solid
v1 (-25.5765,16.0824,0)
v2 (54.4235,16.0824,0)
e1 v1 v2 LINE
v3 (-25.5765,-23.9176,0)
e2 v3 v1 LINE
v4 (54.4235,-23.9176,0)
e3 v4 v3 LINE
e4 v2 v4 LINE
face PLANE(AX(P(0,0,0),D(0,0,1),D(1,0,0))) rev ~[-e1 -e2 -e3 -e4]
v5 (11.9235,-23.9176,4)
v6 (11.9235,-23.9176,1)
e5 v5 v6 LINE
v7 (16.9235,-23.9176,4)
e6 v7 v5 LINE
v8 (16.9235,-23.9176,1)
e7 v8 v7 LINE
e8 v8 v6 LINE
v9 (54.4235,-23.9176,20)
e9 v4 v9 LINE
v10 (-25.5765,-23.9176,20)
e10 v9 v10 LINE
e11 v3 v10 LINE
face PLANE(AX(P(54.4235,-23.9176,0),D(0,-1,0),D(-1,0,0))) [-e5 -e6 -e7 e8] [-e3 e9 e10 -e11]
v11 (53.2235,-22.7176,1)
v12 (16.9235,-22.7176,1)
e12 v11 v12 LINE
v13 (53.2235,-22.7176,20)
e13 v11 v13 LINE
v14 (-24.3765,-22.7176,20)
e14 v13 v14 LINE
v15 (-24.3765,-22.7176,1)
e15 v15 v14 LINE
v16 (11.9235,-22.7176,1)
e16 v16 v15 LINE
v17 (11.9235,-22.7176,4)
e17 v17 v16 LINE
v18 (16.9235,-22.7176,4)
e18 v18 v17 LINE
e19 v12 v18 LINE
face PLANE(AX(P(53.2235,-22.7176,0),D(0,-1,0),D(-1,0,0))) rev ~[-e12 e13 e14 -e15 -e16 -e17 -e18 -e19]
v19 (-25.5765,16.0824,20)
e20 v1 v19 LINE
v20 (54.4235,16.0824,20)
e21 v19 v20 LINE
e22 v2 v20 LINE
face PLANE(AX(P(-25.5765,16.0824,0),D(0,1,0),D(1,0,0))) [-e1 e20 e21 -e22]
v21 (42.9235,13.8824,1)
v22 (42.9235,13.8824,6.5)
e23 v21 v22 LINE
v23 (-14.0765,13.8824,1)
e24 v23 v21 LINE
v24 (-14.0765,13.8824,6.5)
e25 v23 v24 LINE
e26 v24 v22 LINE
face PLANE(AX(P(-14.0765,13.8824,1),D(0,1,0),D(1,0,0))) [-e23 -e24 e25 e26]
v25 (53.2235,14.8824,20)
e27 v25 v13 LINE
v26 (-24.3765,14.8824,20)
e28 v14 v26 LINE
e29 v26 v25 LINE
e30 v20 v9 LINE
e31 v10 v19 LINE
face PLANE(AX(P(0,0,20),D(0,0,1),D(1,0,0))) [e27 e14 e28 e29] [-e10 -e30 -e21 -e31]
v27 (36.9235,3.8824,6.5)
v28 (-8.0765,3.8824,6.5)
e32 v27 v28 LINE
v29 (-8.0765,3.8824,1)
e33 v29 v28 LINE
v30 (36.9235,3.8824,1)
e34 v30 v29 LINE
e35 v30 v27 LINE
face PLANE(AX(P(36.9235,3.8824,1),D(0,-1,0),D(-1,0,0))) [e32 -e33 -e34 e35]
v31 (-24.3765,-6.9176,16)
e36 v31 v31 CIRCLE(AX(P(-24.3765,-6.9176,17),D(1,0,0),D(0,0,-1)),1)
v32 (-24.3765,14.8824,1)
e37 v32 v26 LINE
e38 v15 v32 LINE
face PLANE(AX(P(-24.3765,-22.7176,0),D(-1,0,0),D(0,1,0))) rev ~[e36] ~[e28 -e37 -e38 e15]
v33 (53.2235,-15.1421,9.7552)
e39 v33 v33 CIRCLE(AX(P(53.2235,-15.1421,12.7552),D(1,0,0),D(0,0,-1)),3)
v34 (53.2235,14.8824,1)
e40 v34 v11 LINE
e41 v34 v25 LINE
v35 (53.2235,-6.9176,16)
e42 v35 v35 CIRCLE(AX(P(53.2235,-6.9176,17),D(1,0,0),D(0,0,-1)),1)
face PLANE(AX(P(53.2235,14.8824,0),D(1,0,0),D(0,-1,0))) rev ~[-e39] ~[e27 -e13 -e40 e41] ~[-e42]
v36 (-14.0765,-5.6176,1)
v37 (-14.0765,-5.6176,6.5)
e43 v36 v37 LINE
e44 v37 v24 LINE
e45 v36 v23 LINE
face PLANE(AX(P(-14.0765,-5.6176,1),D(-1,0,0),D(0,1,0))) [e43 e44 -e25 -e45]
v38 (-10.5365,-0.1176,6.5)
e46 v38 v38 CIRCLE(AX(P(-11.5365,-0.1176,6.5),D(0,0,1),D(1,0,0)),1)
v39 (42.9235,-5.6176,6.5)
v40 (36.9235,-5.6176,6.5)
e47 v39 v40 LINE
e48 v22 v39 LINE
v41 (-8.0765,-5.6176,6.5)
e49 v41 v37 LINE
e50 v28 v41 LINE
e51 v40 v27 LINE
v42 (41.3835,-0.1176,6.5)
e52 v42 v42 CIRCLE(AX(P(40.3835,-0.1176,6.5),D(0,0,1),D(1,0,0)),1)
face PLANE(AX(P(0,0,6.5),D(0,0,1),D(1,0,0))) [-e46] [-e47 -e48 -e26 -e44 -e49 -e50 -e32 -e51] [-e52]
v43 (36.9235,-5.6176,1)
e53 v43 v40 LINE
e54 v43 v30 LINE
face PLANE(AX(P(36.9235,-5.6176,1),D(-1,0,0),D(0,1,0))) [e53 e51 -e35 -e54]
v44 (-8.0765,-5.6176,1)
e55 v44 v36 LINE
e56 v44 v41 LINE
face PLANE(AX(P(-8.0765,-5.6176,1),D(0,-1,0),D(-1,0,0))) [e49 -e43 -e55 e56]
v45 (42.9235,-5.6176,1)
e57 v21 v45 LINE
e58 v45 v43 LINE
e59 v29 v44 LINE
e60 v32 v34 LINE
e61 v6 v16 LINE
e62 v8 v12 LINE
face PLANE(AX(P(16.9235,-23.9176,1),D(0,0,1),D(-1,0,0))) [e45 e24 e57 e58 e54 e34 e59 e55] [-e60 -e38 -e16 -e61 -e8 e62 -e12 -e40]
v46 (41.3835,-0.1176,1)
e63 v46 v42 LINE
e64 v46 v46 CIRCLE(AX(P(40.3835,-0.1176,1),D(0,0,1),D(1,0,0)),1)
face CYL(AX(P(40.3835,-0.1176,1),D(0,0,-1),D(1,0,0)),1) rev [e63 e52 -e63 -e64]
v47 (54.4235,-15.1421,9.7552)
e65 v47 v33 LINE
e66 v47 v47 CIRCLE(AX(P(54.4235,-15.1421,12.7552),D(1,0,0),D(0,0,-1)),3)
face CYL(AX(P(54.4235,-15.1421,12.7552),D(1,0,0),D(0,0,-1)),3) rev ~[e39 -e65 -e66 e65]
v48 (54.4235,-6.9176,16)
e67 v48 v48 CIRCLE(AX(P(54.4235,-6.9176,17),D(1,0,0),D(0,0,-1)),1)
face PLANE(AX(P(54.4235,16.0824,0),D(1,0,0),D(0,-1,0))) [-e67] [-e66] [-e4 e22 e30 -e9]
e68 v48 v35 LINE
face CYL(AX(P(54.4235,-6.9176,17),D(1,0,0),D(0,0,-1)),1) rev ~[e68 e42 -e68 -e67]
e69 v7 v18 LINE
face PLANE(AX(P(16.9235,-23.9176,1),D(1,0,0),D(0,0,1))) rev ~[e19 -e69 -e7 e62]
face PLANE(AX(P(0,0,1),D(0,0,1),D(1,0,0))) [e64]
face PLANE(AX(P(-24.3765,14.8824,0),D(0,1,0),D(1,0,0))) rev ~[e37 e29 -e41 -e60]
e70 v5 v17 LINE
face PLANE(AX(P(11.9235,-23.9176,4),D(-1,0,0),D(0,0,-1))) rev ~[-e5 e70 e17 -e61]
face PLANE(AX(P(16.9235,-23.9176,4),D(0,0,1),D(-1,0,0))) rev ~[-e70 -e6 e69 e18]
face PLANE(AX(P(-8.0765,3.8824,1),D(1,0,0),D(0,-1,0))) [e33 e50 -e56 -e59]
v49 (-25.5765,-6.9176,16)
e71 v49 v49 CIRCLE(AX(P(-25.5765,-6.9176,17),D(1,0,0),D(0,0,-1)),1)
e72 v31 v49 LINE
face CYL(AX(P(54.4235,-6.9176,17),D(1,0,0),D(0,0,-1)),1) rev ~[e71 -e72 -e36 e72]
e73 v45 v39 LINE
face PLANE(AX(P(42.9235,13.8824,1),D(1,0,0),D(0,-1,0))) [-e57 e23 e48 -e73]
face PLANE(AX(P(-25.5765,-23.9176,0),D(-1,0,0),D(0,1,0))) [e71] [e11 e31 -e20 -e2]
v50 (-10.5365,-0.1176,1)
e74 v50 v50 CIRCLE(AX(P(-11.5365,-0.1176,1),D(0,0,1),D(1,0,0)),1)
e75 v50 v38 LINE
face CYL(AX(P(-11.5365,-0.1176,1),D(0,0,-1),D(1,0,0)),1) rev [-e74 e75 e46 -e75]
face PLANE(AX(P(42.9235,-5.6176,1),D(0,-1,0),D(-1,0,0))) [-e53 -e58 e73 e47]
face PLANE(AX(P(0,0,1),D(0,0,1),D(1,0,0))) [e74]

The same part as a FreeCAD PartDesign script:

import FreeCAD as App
import Part
import Sketcher

V = App.Vector

doc = App.newDocument("Part")
params = doc.addObject("Spreadsheet::Sheet", "Params")
for row, (alias, value) in enumerate([
    ("sketch1_width", "77.6 mm"),
    ("sketch1_height", "37.6 mm"),
    ("pad1_length", "1 mm"),
    ("sketch2_width", "80 mm"),
    ("sketch2_height", "40 mm"),
    ("pad2_length", "20 mm"),
    ("sketch3_diameter", "2 mm"),
    ("sketch3_width", "6 mm"),
    ("sketch3_width2", "57 mm"),
    ("sketch3_height", "19.5 mm"),
    ("pad3_length", "5.5 mm"),
    ("sketch4_diameter", "2 mm"),
    ("sketch5_diameter", "6 mm"),
    ("pocket2_length", "1.2 mm"),
    ("sketch6_width", "5 mm"),
    ("sketch6_height", "3 mm"),
    ("pocket3_length", "1.2 mm"),
], start=1):
    params.set(f"A{row}", alias)
    params.set(f"B{row}", "=" + value)
    params.setAlias(f"B{row}", alias)

body = doc.addObject("PartDesign::Body", "Body")

# Sketch on XY plane
sketch1 = body.newObject("Sketcher::SketchObject", "Sketch")
sketch1.AttachmentSupport = (doc.getObject("XY_Plane"), [""])
sketch1.MapMode = "FlatFace"
sketch1.addGeometry(Part.LineSegment(V(53, 15, 0), V(-24, 15, 0)), False)
sketch1.addGeometry(Part.LineSegment(V(-24, 15, 0), V(-24, -23, 0)), False)
sketch1.addGeometry(Part.LineSegment(V(-24, -23, 0), V(53, -23, 0)), False)
sketch1.addGeometry(Part.LineSegment(V(53, -23, 0), V(53, 15, 0)), False)
sketch1.addConstraint(Sketcher.Constraint("Coincident", 0, 2, 1, 1))
sketch1.addConstraint(Sketcher.Constraint("Coincident", 1, 2, 2, 1))
sketch1.addConstraint(Sketcher.Constraint("Coincident", 2, 2, 3, 1))
sketch1.addConstraint(Sketcher.Constraint("Coincident", 3, 2, 0, 1))
sketch1.addConstraint(Sketcher.Constraint("Horizontal", 0))
sketch1.addConstraint(Sketcher.Constraint("Vertical", 1))
sketch1.addConstraint(Sketcher.Constraint("Horizontal", 2))
sketch1.addConstraint(Sketcher.Constraint("Vertical", 3))
sketch1.addConstraint(Sketcher.Constraint("DistanceX", 0, 2, 0, 1, 77.6))
sketch1.addConstraint(Sketcher.Constraint("DistanceY", 1, 2, 1, 1, 37.6))
sketch1.addConstraint(Sketcher.Constraint("DistanceX", 0, 2, -1, 1, 24.3765))
sketch1.addConstraint(Sketcher.Constraint("DistanceY", -1, 1, 0, 2, 14.8824))
sketch1.setExpression("Constraints[8]", "Params.sketch1_width")
sketch1.setExpression("Constraints[9]", "Params.sketch1_height")
pad1 = body.newObject("PartDesign::Pad", "Pad")
pad1.Profile = sketch1
pad1.setExpression("Length", "Params.pad1_length")

# Sketch on XY plane
sketch2 = body.newObject("Sketcher::SketchObject", "Sketch001")
sketch2.AttachmentSupport = (doc.getObject("XY_Plane"), [""])
sketch2.MapMode = "FlatFace"
sketch2.addGeometry(Part.LineSegment(V(54, 16, 0), V(-26, 16, 0)), False)
sketch2.addGeometry(Part.LineSegment(V(-26, 16, 0), V(-26, -24, 0)), False)
sketch2.addGeometry(Part.LineSegment(V(-26, -24, 0), V(54, -24, 0)), False)
sketch2.addGeometry(Part.LineSegment(V(54, -24, 0), V(54, 16, 0)), False)
sketch2.addGeometry(Part.LineSegment(V(-24, -23, 0), V(-24, 15, 0)), False)
sketch2.addGeometry(Part.LineSegment(V(-24, 15, 0), V(53, 15, 0)), False)
sketch2.addGeometry(Part.LineSegment(V(53, 15, 0), V(53, -23, 0)), False)
sketch2.addGeometry(Part.LineSegment(V(53, -23, 0), V(-24, -23, 0)), False)
sketch2.addConstraint(Sketcher.Constraint("Coincident", 0, 2, 1, 1))
sketch2.addConstraint(Sketcher.Constraint("Coincident", 1, 2, 2, 1))
sketch2.addConstraint(Sketcher.Constraint("Coincident", 2, 2, 3, 1))
sketch2.addConstraint(Sketcher.Constraint("Coincident", 3, 2, 0, 1))
sketch2.addConstraint(Sketcher.Constraint("Coincident", 4, 2, 5, 1))
sketch2.addConstraint(Sketcher.Constraint("Coincident", 5, 2, 6, 1))
sketch2.addConstraint(Sketcher.Constraint("Coincident", 6, 2, 7, 1))
sketch2.addConstraint(Sketcher.Constraint("Coincident", 7, 2, 4, 1))
sketch2.addConstraint(Sketcher.Constraint("Horizontal", 0))
sketch2.addConstraint(Sketcher.Constraint("Vertical", 1))
sketch2.addConstraint(Sketcher.Constraint("Horizontal", 2))
sketch2.addConstraint(Sketcher.Constraint("Vertical", 3))
sketch2.addConstraint(Sketcher.Constraint("Vertical", 4))
sketch2.addConstraint(Sketcher.Constraint("Horizontal", 5))
sketch2.addConstraint(Sketcher.Constraint("Vertical", 6))
sketch2.addConstraint(Sketcher.Constraint("Horizontal", 7))
sketch2.addConstraint(Sketcher.Constraint("DistanceX", 0, 2, 0, 1, 80.0))
sketch2.addConstraint(Sketcher.Constraint("DistanceY", 1, 2, 1, 1, 40.0))
sketch2.addConstraint(Sketcher.Constraint("DistanceX", 0, 2, 4, 2, 1.2))
sketch2.addConstraint(Sketcher.Constraint("DistanceY", 4, 2, 0, 2, 1.2))
sketch2.addConstraint(Sketcher.Constraint("DistanceX", 5, 2, 3, 2, 1.2))
sketch2.addConstraint(Sketcher.Constraint("DistanceY", 2, 2, 6, 2, 1.2))
sketch2.addConstraint(Sketcher.Constraint("DistanceX", 0, 2, -1, 1, 25.5765))
sketch2.addConstraint(Sketcher.Constraint("DistanceY", -1, 1, 0, 2, 16.0824))
sketch2.setExpression("Constraints[16]", "Params.sketch2_width")
sketch2.setExpression("Constraints[17]", "Params.sketch2_height")
pad2 = body.newObject("PartDesign::Pad", "Pad001")
pad2.Profile = sketch2
pad2.setExpression("Length", "Params.pad2_length")

# Sketch on XY plane
sketch3 = body.newObject("Sketcher::SketchObject", "Sketch002")
sketch3.AttachmentSupport = (doc.getObject("XY_Plane"), [""])
sketch3.MapMode = "FlatFace"
sketch3.AttachmentOffset = App.Placement(V(0, 0, 1), App.Rotation())
sketch3.addGeometry(Part.LineSegment(V(-14.1, 13.9, 0), V(-14.1, -5.6, 0)), False)
sketch3.addGeometry(Part.LineSegment(V(-14.1, -5.6, 0), V(-8.1, -5.6, 0)), False)
sketch3.addGeometry(Part.LineSegment(V(-8.1, -5.6, 0), V(-8.1, 3.9, 0)), False)
sketch3.addGeometry(Part.LineSegment(V(-8.1, 3.9, 0), V(36.9, 3.9, 0)), False)
sketch3.addGeometry(Part.LineSegment(V(36.9, 3.9, 0), V(36.9, -5.6, 0)), False)
sketch3.addGeometry(Part.LineSegment(V(36.9, -5.6, 0), V(42.9, -5.6, 0)), False)
sketch3.addGeometry(Part.LineSegment(V(42.9, -5.6, 0), V(42.9, 13.9, 0)), False)
sketch3.addGeometry(Part.LineSegment(V(42.9, 13.9, 0), V(-14.1, 13.9, 0)), False)
sketch3.addGeometry(Part.Circle(V(-11.5, -0.1, 0), V(0, 0, 1), 1), False)
sketch3.addGeometry(Part.Circle(V(40.4, -0.1, 0), V(0, 0, 1), 1), False)
sketch3.addConstraint(Sketcher.Constraint("Coincident", 0, 2, 1, 1))
sketch3.addConstraint(Sketcher.Constraint("Coincident", 1, 2, 2, 1))
sketch3.addConstraint(Sketcher.Constraint("Coincident", 2, 2, 3, 1))
sketch3.addConstraint(Sketcher.Constraint("Coincident", 3, 2, 4, 1))
sketch3.addConstraint(Sketcher.Constraint("Coincident", 4, 2, 5, 1))
sketch3.addConstraint(Sketcher.Constraint("Coincident", 5, 2, 6, 1))
sketch3.addConstraint(Sketcher.Constraint("Coincident", 6, 2, 7, 1))
sketch3.addConstraint(Sketcher.Constraint("Coincident", 7, 2, 0, 1))
sketch3.addConstraint(Sketcher.Constraint("Vertical", 0))
sketch3.addConstraint(Sketcher.Constraint("Horizontal", 1))
sketch3.addConstraint(Sketcher.Constraint("Vertical", 2))
sketch3.addConstraint(Sketcher.Constraint("Horizontal", 3))
sketch3.addConstraint(Sketcher.Constraint("Vertical", 4))
sketch3.addConstraint(Sketcher.Constraint("Horizontal", 5))
sketch3.addConstraint(Sketcher.Constraint("Vertical", 6))
sketch3.addConstraint(Sketcher.Constraint("Horizontal", 7))
sketch3.addConstraint(Sketcher.Constraint("Equal", 8, 9))
sketch3.addConstraint(Sketcher.Constraint("Horizontal", 8, 3, 9, 3))
sketch3.addConstraint(Sketcher.Constraint("Horizontal", 1, 2, 4, 2))
sketch3.addConstraint(Sketcher.Constraint("Equal", 1, 5))
sketch3.addConstraint(Sketcher.Constraint("Diameter", 8, 2.0))
sketch3.addConstraint(Sketcher.Constraint("DistanceX", 1, 1, 1, 2, 6.0))
sketch3.addConstraint(Sketcher.Constraint("DistanceX", 7, 2, 7, 1, 57.0))
sketch3.addConstraint(Sketcher.Constraint("DistanceY", 3, 2, 6, 2, 10.0))
sketch3.addConstraint(Sketcher.Constraint("DistanceY", 9, 3, 6, 2, 14.0))
sketch3.addConstraint(Sketcher.Constraint("DistanceX", 0, 2, 8, 3, 2.54))
sketch3.addConstraint(Sketcher.Constraint("DistanceX", 9, 3, 5, 2, 2.54))
sketch3.addConstraint(Sketcher.Constraint("DistanceY", 0, 2, 0, 1, 19.5))
sketch3.addConstraint(Sketcher.Constraint("DistanceX", 8, 3, -1, 1, 11.5365))
sketch3.addConstraint(Sketcher.Constraint("DistanceY", 8, 3, -1, 1, 0.1176))
sketch3.setExpression("Constraints[20]", "Params.sketch3_diameter")
sketch3.setExpression("Constraints[21]", "Params.sketch3_width")
sketch3.setExpression("Constraints[22]", "Params.sketch3_width2")
sketch3.setExpression("Constraints[27]", "Params.sketch3_height")
pad3 = body.newObject("PartDesign::Pad", "Pad002")
pad3.Profile = sketch3
pad3.setExpression("Length", "Params.pad3_length")

# Sketch on YZ plane
sketch4 = body.newObject("Sketcher::SketchObject", "Sketch003")
sketch4.AttachmentSupport = (doc.getObject("YZ_Plane"), [""])
sketch4.MapMode = "FlatFace"
sketch4.AttachmentOffset = App.Placement(V(0, 0, 54.4235), App.Rotation())
sketch4.addGeometry(Part.Circle(V(-6.9, 17, 0), V(0, 0, 1), 1), False)
sketch4.addConstraint(Sketcher.Constraint("Diameter", 0, 2.0))
sketch4.addConstraint(Sketcher.Constraint("DistanceY", -1, 1, 0, 3, 17.0))
sketch4.addConstraint(Sketcher.Constraint("DistanceX", 0, 3, -1, 1, 6.9176))
sketch4.setExpression("Constraints[0]", "Params.sketch4_diameter")
pocket1 = body.newObject("PartDesign::Pocket", "Pocket")
pocket1.Profile = sketch4
pocket1.Type = "ThroughAll"

# Sketch on YZ plane
sketch5 = body.newObject("Sketcher::SketchObject", "Sketch004")
sketch5.AttachmentSupport = (doc.getObject("YZ_Plane"), [""])
sketch5.MapMode = "FlatFace"
sketch5.AttachmentOffset = App.Placement(V(0, 0, 54.4235), App.Rotation())
sketch5.addGeometry(Part.Circle(V(-15.1, 12.8, 0), V(0, 0, 1), 3), False)
sketch5.addConstraint(Sketcher.Constraint("Diameter", 0, 6.0))
sketch5.addConstraint(Sketcher.Constraint("DistanceX", 0, 3, -1, 1, 15.142))
sketch5.addConstraint(Sketcher.Constraint("DistanceY", -1, 1, 0, 3, 12.7552))
sketch5.setExpression("Constraints[0]", "Params.sketch5_diameter")
pocket2 = body.newObject("PartDesign::Pocket", "Pocket001")
pocket2.Profile = sketch5
pocket2.setExpression("Length", "Params.pocket2_length")

# Sketch on XZ plane
sketch6 = body.newObject("Sketcher::SketchObject", "Sketch005")
sketch6.AttachmentSupport = (doc.getObject("XZ_Plane"), [""])
sketch6.MapMode = "FlatFace"
sketch6.AttachmentOffset = App.Placement(V(0, 0, 23.9176), App.Rotation())
sketch6.addGeometry(Part.LineSegment(V(11.9, 1, 0), V(16.9, 1, 0)), False)
sketch6.addGeometry(Part.LineSegment(V(16.9, 1, 0), V(16.9, 4, 0)), False)
sketch6.addGeometry(Part.LineSegment(V(16.9, 4, 0), V(11.9, 4, 0)), False)
sketch6.addGeometry(Part.LineSegment(V(11.9, 4, 0), V(11.9, 1, 0)), False)
sketch6.addConstraint(Sketcher.Constraint("Coincident", 0, 2, 1, 1))
sketch6.addConstraint(Sketcher.Constraint("Coincident", 1, 2, 2, 1))
sketch6.addConstraint(Sketcher.Constraint("Coincident", 2, 2, 3, 1))
sketch6.addConstraint(Sketcher.Constraint("Coincident", 3, 2, 0, 1))
sketch6.addConstraint(Sketcher.Constraint("Horizontal", 0))
sketch6.addConstraint(Sketcher.Constraint("Vertical", 1))
sketch6.addConstraint(Sketcher.Constraint("Horizontal", 2))
sketch6.addConstraint(Sketcher.Constraint("Vertical", 3))
sketch6.addConstraint(Sketcher.Constraint("DistanceX", 0, 1, 0, 2, 5.0))
sketch6.addConstraint(Sketcher.Constraint("DistanceY", 1, 1, 1, 2, 3.0))
sketch6.addConstraint(Sketcher.Constraint("DistanceY", -1, 1, 0, 2, 1.0))
sketch6.addConstraint(Sketcher.Constraint("DistanceX", -1, 1, 0, 2, 16.9235))
sketch6.setExpression("Constraints[8]", "Params.sketch6_width")
sketch6.setExpression("Constraints[9]", "Params.sketch6_height")
pocket3 = body.newObject("PartDesign::Pocket", "Pocket002")
pocket3.Profile = sketch6
pocket3.setExpression("Length", "Params.pocket3_length")

doc.recompute()
